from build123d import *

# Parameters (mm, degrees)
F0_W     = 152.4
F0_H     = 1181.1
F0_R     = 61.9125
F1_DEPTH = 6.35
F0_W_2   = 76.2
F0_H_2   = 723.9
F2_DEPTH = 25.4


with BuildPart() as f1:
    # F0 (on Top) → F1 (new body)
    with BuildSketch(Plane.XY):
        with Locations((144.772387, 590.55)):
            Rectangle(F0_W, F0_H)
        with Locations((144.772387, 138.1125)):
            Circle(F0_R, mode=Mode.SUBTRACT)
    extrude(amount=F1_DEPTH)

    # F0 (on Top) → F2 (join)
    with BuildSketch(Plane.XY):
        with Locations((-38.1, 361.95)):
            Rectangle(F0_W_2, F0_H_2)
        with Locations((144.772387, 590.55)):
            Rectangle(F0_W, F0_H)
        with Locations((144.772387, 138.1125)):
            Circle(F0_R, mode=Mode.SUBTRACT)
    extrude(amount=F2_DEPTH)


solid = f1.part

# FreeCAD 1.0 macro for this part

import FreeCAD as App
import Part
import Sketcher
from FreeCAD import Vector
Q = App.Units.Quantity

doc = App.newDocument("Part")
params = doc.addObject("Spreadsheet::Sheet", "Params")
for row, (alias, value) in enumerate([
    ("sketch1_width", "6 in"),
    ("sketch1_diameter", "4.875 in"),
    ("sketch1_height", "46.5 in"),
    ("pad1_length", "0.25 in"),
    ("sketch2_width", "3 in"),
    ("sketch2_width2", "6 in"),
    ("sketch2_diameter", "4.875 in"),
    ("sketch2_height", "28.5 in"),
    ("sketch2_height2", "46.5 in"),
    ("pad2_length", "1 in"),
], start=1):
    params.set(f"A{row}", alias)
    params.set(f"B{row}", "=" + value)
    params.setAlias(f"B{row}", alias)

body = doc.addObject("PartDesign::Body", "Body")
body.AllowCompound = True

# Sketch on XY plane
sketch1 = doc.addObject("Sketcher::SketchObject", "Sketch")
body.addObject(sketch1)
sketch1.AttachmentSupport = (doc.XY_Plane, [""])
sketch1.MapMode = "FlatFace"
sketch1.addGeometry([
    Part.LineSegment(Vector(69, 1181, 0), Vector(69, 0, 0)),  # 0
    Part.LineSegment(Vector(69, 0, 0), Vector(221, 0, 0)),  # 1
    Part.LineSegment(Vector(221, 0, 0), Vector(221, 1181, 0)),  # 2
    Part.LineSegment(Vector(221, 1181, 0), Vector(69, 1181, 0)),  # 3
    Part.Circle(Vector(145, 138, 0), Vector(0, 0, 1), 62),  # 4
], False)
sketch1.addConstraint([
    Sketcher.Constraint("Coincident", 0, 2, 1, 1),
    Sketcher.Constraint("Coincident", 1, 2, 2, 1),
    Sketcher.Constraint("Coincident", 2, 2, 3, 1),
    Sketcher.Constraint("Coincident", 3, 2, 0, 1),
    Sketcher.Constraint("Vertical", 0),
    Sketcher.Constraint("Horizontal", 1),
    Sketcher.Constraint("Vertical", 2),
    Sketcher.Constraint("Horizontal", 3),
    Sketcher.Constraint("PointOnObject", 0, 2, -1),
    Sketcher.Constraint("DistanceX", 1, 1, 1, 2, Q("6 in")),
    Sketcher.Constraint("Diameter", 4, Q("4.875 in")),
    Sketcher.Constraint("DistanceY", 0, 2, 0, 1, Q("46.5 in")),
    Sketcher.Constraint("DistanceX", 0, 2, 4, 3, Q("3 in")),
    Sketcher.Constraint("DistanceY", -1, 1, 4, 3, Q("5.4375 in")),
    Sketcher.Constraint("DistanceX", -1, 1, 4, 3, Q("144.772387 mm")),
])
sketch1.setExpression("Constraints[9]", "Params.sketch1_width")
sketch1.setExpression("Constraints[10]", "Params.sketch1_diameter")
sketch1.setExpression("Constraints[11]", "Params.sketch1_height")
pad1 = doc.addObject("PartDesign::Pad", "Pad")
body.addObject(pad1)
pad1.Profile = sketch1
pad1.setExpression("Length", "Params.pad1_length")

# Sketch on XY plane
sketch2 = doc.addObject("Sketcher::SketchObject", "Sketch001")
body.addObject(sketch2)
sketch2.AttachmentSupport = (doc.XY_Plane, [""])
sketch2.MapMode = "FlatFace"
sketch2.addGeometry([
    Part.LineSegment(Vector(-76, 724, 0), Vector(-76, 0, 0)),  # 0
    Part.LineSegment(Vector(-76, 0, 0), Vector(0, 0, 0)),  # 1
    Part.LineSegment(Vector(0, 0, 0), Vector(0, 724, 0)),  # 2
    Part.LineSegment(Vector(0, 724, 0), Vector(-76, 724, 0)),  # 3
    Part.LineSegment(Vector(69, 1181, 0), Vector(69, 0, 0)),  # 4
    Part.LineSegment(Vector(69, 0, 0), Vector(221, 0, 0)),  # 5
    Part.LineSegment(Vector(221, 0, 0), Vector(221, 1181, 0)),  # 6
    Part.LineSegment(Vector(221, 1181, 0), Vector(69, 1181, 0)),  # 7
    Part.Circle(Vector(145, 138, 0), Vector(0, 0, 1), 62),  # 8
], False)
sketch2.addConstraint([
    Sketcher.Constraint("Coincident", 0, 2, 1, 1),
    Sketcher.Constraint("Coincident", 1, 2, 2, 1),
    Sketcher.Constraint("Coincident", 2, 2, 3, 1),
    Sketcher.Constraint("Coincident", 3, 2, 0, 1),
    Sketcher.Constraint("Coincident", 4, 2, 5, 1),
    Sketcher.Constraint("Coincident", 5, 2, 6, 1),
    Sketcher.Constraint("Coincident", 6, 2, 7, 1),
    Sketcher.Constraint("Coincident", 7, 2, 4, 1),
    Sketcher.Constraint("Vertical", 0),
    Sketcher.Constraint("Horizontal", 1),
    Sketcher.Constraint("Vertical", 2),
    Sketcher.Constraint("Horizontal", 3),
    Sketcher.Constraint("Vertical", 4),
    Sketcher.Constraint("Horizontal", 5),
    Sketcher.Constraint("Vertical", 6),
    Sketcher.Constraint("Horizontal", 7),
    Sketcher.Constraint("Coincident", 1, 2, -1, 1),
    Sketcher.Constraint("PointOnObject", 4, 2, -1),
    Sketcher.Constraint("DistanceX", 1, 1, 1, 2, Q("3 in")),
    Sketcher.Constraint("DistanceX", 5, 1, 5, 2, Q("6 in")),
    Sketcher.Constraint("Diameter", 8, Q("4.875 in")),
    Sketcher.Constraint("DistanceY", 0, 2, 0, 1, Q("28.5 in")),
    Sketcher.Constraint("DistanceY", 4, 2, 4, 1, Q("46.5 in")),
    Sketcher.Constraint("DistanceX", 4, 2, 8, 3, Q("3 in")),
    Sketcher.Constraint("DistanceY", -1, 1, 8, 3, Q("5.4375 in")),
    Sketcher.Constraint("DistanceX", -1, 1, 8, 3, Q("144.772387 mm")),
])
sketch2.setExpression("Constraints[18]", "Params.sketch2_width")
sketch2.setExpression("Constraints[19]", "Params.sketch2_width2")
sketch2.setExpression("Constraints[20]", "Params.sketch2_diameter")
sketch2.setExpression("Constraints[21]", "Params.sketch2_height")
sketch2.setExpression("Constraints[22]", "Params.sketch2_height2")
pad2 = doc.addObject("PartDesign::Pad", "Pad001")
body.addObject(pad2)
pad2.Profile = sketch2
pad2.setExpression("Length", "Params.pad2_length")

doc.recompute()
